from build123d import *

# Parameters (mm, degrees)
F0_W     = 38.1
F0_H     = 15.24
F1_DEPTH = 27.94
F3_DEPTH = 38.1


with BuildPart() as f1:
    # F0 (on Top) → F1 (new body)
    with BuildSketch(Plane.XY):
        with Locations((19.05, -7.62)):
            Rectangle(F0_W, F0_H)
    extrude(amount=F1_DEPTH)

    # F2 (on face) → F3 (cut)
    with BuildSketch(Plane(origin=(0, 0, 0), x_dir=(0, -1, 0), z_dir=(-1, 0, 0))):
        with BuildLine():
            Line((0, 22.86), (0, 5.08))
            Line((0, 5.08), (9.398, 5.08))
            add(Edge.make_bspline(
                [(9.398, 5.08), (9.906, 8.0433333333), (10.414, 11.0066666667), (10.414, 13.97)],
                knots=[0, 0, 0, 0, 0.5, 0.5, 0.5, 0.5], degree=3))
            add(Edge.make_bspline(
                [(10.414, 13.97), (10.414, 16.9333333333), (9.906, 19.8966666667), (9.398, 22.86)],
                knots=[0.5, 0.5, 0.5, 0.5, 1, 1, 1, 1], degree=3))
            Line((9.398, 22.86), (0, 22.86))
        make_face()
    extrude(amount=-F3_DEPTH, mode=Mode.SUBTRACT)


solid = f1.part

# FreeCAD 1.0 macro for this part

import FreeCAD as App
import Part
import Sketcher

V = App.Vector
Q = App.Units.Quantity


def add_polygon(sketch, points):
    """Adds a closed chain of lines whose ends are joined by coincident constraints."""
    first, n = sketch.GeometryCount, len(points)
    for a, b in zip(points, points[1:] + points[:1]):
        sketch.addGeometry(Part.LineSegment(App.Vector(*a, 0), App.Vector(*b, 0)), False)
    for i in range(n):
        sketch.addConstraint(Sketcher.Constraint("Coincident", first + i, 2, first + (i + 1) % n, 1))

doc = App.newDocument("Part")
body = doc.addObject("PartDesign::Body", "Body")

# Sketch on XY plane
sketch1 = body.newObject("Sketcher::SketchObject", "Sketch")
sketch1.AttachmentSupport = (doc.getObject("XY_Plane"), [""])
sketch1.MapMode = "FlatFace"
add_polygon(sketch1, [(0, 0), (0, -15), (38, -15), (38, 0)])  # lines 0-3
sketch1.addConstraint([
    Sketcher.Constraint("Vertical", 0),
    Sketcher.Constraint("Horizontal", 1),
    Sketcher.Constraint("Vertical", 2),
    Sketcher.Constraint("Horizontal", 3),
    Sketcher.Constraint("Coincident", 3, 2, -1, 1),
    Sketcher.Constraint("DistanceX", 1, 1, 1, 2, Q("1.5 in")),
    Sketcher.Constraint("DistanceY", 0, 2, 0, 1, Q("0.6 in")),
])
pad1 = body.newObject("PartDesign::Pad", "Pad")
pad1.Profile = sketch1
pad1.Length = Q("1.1 in")

# Sketch on YZ plane
sketch2 = body.newObject("Sketcher::SketchObject", "Sketch001")
sketch2.AttachmentSupport = (doc.getObject("YZ_Plane"), [""])
sketch2.MapMode = "FlatFace"
sketch2.addGeometry([
    Part.LineSegment(V(0, 22.86, 0), V(0, 5.08, 0)),
    Part.LineSegment(V(0, 5.08, 0), V(-9.398, 5.08, 0)),
    Part.BSplineCurve([V(-9.398, 5.08, 0), V(-9.906, 8.043333, 0), V(-10.922, 13.97, 0), V(-9.906, 19.896667, 0), V(-9.398, 22.86, 0)], [4, 1, 4], [0, 0.5, 1], False, 3, [1, 1, 1, 1, 1], False),
    Part.LineSegment(V(-9.398, 22.86, 0), V(0, 22.86, 0)),
], False)
sketch2.addConstraint([
    Sketcher.Constraint("Block", 2),
    Sketcher.Constraint("Coincident", 0, 2, 1, 1),
    Sketcher.Constraint("Coincident", 1, 2, 2, 1),
    Sketcher.Constraint("Coincident", 2, 2, 3, 1),
    Sketcher.Constraint("Coincident", 3, 2, 0, 1),
    Sketcher.Constraint("Vertical", 0),
    Sketcher.Constraint("Horizontal", 1),
    Sketcher.Constraint("Horizontal", 3),
    Sketcher.Constraint("PointOnObject", 0, 2, -2),
])
pocket1 = body.newObject("PartDesign::Pocket", "Pocket")
pocket1.Profile = sketch2
pocket1.Length = Q("1.5 in")
pocket1.Reversed = True

doc.recompute()
